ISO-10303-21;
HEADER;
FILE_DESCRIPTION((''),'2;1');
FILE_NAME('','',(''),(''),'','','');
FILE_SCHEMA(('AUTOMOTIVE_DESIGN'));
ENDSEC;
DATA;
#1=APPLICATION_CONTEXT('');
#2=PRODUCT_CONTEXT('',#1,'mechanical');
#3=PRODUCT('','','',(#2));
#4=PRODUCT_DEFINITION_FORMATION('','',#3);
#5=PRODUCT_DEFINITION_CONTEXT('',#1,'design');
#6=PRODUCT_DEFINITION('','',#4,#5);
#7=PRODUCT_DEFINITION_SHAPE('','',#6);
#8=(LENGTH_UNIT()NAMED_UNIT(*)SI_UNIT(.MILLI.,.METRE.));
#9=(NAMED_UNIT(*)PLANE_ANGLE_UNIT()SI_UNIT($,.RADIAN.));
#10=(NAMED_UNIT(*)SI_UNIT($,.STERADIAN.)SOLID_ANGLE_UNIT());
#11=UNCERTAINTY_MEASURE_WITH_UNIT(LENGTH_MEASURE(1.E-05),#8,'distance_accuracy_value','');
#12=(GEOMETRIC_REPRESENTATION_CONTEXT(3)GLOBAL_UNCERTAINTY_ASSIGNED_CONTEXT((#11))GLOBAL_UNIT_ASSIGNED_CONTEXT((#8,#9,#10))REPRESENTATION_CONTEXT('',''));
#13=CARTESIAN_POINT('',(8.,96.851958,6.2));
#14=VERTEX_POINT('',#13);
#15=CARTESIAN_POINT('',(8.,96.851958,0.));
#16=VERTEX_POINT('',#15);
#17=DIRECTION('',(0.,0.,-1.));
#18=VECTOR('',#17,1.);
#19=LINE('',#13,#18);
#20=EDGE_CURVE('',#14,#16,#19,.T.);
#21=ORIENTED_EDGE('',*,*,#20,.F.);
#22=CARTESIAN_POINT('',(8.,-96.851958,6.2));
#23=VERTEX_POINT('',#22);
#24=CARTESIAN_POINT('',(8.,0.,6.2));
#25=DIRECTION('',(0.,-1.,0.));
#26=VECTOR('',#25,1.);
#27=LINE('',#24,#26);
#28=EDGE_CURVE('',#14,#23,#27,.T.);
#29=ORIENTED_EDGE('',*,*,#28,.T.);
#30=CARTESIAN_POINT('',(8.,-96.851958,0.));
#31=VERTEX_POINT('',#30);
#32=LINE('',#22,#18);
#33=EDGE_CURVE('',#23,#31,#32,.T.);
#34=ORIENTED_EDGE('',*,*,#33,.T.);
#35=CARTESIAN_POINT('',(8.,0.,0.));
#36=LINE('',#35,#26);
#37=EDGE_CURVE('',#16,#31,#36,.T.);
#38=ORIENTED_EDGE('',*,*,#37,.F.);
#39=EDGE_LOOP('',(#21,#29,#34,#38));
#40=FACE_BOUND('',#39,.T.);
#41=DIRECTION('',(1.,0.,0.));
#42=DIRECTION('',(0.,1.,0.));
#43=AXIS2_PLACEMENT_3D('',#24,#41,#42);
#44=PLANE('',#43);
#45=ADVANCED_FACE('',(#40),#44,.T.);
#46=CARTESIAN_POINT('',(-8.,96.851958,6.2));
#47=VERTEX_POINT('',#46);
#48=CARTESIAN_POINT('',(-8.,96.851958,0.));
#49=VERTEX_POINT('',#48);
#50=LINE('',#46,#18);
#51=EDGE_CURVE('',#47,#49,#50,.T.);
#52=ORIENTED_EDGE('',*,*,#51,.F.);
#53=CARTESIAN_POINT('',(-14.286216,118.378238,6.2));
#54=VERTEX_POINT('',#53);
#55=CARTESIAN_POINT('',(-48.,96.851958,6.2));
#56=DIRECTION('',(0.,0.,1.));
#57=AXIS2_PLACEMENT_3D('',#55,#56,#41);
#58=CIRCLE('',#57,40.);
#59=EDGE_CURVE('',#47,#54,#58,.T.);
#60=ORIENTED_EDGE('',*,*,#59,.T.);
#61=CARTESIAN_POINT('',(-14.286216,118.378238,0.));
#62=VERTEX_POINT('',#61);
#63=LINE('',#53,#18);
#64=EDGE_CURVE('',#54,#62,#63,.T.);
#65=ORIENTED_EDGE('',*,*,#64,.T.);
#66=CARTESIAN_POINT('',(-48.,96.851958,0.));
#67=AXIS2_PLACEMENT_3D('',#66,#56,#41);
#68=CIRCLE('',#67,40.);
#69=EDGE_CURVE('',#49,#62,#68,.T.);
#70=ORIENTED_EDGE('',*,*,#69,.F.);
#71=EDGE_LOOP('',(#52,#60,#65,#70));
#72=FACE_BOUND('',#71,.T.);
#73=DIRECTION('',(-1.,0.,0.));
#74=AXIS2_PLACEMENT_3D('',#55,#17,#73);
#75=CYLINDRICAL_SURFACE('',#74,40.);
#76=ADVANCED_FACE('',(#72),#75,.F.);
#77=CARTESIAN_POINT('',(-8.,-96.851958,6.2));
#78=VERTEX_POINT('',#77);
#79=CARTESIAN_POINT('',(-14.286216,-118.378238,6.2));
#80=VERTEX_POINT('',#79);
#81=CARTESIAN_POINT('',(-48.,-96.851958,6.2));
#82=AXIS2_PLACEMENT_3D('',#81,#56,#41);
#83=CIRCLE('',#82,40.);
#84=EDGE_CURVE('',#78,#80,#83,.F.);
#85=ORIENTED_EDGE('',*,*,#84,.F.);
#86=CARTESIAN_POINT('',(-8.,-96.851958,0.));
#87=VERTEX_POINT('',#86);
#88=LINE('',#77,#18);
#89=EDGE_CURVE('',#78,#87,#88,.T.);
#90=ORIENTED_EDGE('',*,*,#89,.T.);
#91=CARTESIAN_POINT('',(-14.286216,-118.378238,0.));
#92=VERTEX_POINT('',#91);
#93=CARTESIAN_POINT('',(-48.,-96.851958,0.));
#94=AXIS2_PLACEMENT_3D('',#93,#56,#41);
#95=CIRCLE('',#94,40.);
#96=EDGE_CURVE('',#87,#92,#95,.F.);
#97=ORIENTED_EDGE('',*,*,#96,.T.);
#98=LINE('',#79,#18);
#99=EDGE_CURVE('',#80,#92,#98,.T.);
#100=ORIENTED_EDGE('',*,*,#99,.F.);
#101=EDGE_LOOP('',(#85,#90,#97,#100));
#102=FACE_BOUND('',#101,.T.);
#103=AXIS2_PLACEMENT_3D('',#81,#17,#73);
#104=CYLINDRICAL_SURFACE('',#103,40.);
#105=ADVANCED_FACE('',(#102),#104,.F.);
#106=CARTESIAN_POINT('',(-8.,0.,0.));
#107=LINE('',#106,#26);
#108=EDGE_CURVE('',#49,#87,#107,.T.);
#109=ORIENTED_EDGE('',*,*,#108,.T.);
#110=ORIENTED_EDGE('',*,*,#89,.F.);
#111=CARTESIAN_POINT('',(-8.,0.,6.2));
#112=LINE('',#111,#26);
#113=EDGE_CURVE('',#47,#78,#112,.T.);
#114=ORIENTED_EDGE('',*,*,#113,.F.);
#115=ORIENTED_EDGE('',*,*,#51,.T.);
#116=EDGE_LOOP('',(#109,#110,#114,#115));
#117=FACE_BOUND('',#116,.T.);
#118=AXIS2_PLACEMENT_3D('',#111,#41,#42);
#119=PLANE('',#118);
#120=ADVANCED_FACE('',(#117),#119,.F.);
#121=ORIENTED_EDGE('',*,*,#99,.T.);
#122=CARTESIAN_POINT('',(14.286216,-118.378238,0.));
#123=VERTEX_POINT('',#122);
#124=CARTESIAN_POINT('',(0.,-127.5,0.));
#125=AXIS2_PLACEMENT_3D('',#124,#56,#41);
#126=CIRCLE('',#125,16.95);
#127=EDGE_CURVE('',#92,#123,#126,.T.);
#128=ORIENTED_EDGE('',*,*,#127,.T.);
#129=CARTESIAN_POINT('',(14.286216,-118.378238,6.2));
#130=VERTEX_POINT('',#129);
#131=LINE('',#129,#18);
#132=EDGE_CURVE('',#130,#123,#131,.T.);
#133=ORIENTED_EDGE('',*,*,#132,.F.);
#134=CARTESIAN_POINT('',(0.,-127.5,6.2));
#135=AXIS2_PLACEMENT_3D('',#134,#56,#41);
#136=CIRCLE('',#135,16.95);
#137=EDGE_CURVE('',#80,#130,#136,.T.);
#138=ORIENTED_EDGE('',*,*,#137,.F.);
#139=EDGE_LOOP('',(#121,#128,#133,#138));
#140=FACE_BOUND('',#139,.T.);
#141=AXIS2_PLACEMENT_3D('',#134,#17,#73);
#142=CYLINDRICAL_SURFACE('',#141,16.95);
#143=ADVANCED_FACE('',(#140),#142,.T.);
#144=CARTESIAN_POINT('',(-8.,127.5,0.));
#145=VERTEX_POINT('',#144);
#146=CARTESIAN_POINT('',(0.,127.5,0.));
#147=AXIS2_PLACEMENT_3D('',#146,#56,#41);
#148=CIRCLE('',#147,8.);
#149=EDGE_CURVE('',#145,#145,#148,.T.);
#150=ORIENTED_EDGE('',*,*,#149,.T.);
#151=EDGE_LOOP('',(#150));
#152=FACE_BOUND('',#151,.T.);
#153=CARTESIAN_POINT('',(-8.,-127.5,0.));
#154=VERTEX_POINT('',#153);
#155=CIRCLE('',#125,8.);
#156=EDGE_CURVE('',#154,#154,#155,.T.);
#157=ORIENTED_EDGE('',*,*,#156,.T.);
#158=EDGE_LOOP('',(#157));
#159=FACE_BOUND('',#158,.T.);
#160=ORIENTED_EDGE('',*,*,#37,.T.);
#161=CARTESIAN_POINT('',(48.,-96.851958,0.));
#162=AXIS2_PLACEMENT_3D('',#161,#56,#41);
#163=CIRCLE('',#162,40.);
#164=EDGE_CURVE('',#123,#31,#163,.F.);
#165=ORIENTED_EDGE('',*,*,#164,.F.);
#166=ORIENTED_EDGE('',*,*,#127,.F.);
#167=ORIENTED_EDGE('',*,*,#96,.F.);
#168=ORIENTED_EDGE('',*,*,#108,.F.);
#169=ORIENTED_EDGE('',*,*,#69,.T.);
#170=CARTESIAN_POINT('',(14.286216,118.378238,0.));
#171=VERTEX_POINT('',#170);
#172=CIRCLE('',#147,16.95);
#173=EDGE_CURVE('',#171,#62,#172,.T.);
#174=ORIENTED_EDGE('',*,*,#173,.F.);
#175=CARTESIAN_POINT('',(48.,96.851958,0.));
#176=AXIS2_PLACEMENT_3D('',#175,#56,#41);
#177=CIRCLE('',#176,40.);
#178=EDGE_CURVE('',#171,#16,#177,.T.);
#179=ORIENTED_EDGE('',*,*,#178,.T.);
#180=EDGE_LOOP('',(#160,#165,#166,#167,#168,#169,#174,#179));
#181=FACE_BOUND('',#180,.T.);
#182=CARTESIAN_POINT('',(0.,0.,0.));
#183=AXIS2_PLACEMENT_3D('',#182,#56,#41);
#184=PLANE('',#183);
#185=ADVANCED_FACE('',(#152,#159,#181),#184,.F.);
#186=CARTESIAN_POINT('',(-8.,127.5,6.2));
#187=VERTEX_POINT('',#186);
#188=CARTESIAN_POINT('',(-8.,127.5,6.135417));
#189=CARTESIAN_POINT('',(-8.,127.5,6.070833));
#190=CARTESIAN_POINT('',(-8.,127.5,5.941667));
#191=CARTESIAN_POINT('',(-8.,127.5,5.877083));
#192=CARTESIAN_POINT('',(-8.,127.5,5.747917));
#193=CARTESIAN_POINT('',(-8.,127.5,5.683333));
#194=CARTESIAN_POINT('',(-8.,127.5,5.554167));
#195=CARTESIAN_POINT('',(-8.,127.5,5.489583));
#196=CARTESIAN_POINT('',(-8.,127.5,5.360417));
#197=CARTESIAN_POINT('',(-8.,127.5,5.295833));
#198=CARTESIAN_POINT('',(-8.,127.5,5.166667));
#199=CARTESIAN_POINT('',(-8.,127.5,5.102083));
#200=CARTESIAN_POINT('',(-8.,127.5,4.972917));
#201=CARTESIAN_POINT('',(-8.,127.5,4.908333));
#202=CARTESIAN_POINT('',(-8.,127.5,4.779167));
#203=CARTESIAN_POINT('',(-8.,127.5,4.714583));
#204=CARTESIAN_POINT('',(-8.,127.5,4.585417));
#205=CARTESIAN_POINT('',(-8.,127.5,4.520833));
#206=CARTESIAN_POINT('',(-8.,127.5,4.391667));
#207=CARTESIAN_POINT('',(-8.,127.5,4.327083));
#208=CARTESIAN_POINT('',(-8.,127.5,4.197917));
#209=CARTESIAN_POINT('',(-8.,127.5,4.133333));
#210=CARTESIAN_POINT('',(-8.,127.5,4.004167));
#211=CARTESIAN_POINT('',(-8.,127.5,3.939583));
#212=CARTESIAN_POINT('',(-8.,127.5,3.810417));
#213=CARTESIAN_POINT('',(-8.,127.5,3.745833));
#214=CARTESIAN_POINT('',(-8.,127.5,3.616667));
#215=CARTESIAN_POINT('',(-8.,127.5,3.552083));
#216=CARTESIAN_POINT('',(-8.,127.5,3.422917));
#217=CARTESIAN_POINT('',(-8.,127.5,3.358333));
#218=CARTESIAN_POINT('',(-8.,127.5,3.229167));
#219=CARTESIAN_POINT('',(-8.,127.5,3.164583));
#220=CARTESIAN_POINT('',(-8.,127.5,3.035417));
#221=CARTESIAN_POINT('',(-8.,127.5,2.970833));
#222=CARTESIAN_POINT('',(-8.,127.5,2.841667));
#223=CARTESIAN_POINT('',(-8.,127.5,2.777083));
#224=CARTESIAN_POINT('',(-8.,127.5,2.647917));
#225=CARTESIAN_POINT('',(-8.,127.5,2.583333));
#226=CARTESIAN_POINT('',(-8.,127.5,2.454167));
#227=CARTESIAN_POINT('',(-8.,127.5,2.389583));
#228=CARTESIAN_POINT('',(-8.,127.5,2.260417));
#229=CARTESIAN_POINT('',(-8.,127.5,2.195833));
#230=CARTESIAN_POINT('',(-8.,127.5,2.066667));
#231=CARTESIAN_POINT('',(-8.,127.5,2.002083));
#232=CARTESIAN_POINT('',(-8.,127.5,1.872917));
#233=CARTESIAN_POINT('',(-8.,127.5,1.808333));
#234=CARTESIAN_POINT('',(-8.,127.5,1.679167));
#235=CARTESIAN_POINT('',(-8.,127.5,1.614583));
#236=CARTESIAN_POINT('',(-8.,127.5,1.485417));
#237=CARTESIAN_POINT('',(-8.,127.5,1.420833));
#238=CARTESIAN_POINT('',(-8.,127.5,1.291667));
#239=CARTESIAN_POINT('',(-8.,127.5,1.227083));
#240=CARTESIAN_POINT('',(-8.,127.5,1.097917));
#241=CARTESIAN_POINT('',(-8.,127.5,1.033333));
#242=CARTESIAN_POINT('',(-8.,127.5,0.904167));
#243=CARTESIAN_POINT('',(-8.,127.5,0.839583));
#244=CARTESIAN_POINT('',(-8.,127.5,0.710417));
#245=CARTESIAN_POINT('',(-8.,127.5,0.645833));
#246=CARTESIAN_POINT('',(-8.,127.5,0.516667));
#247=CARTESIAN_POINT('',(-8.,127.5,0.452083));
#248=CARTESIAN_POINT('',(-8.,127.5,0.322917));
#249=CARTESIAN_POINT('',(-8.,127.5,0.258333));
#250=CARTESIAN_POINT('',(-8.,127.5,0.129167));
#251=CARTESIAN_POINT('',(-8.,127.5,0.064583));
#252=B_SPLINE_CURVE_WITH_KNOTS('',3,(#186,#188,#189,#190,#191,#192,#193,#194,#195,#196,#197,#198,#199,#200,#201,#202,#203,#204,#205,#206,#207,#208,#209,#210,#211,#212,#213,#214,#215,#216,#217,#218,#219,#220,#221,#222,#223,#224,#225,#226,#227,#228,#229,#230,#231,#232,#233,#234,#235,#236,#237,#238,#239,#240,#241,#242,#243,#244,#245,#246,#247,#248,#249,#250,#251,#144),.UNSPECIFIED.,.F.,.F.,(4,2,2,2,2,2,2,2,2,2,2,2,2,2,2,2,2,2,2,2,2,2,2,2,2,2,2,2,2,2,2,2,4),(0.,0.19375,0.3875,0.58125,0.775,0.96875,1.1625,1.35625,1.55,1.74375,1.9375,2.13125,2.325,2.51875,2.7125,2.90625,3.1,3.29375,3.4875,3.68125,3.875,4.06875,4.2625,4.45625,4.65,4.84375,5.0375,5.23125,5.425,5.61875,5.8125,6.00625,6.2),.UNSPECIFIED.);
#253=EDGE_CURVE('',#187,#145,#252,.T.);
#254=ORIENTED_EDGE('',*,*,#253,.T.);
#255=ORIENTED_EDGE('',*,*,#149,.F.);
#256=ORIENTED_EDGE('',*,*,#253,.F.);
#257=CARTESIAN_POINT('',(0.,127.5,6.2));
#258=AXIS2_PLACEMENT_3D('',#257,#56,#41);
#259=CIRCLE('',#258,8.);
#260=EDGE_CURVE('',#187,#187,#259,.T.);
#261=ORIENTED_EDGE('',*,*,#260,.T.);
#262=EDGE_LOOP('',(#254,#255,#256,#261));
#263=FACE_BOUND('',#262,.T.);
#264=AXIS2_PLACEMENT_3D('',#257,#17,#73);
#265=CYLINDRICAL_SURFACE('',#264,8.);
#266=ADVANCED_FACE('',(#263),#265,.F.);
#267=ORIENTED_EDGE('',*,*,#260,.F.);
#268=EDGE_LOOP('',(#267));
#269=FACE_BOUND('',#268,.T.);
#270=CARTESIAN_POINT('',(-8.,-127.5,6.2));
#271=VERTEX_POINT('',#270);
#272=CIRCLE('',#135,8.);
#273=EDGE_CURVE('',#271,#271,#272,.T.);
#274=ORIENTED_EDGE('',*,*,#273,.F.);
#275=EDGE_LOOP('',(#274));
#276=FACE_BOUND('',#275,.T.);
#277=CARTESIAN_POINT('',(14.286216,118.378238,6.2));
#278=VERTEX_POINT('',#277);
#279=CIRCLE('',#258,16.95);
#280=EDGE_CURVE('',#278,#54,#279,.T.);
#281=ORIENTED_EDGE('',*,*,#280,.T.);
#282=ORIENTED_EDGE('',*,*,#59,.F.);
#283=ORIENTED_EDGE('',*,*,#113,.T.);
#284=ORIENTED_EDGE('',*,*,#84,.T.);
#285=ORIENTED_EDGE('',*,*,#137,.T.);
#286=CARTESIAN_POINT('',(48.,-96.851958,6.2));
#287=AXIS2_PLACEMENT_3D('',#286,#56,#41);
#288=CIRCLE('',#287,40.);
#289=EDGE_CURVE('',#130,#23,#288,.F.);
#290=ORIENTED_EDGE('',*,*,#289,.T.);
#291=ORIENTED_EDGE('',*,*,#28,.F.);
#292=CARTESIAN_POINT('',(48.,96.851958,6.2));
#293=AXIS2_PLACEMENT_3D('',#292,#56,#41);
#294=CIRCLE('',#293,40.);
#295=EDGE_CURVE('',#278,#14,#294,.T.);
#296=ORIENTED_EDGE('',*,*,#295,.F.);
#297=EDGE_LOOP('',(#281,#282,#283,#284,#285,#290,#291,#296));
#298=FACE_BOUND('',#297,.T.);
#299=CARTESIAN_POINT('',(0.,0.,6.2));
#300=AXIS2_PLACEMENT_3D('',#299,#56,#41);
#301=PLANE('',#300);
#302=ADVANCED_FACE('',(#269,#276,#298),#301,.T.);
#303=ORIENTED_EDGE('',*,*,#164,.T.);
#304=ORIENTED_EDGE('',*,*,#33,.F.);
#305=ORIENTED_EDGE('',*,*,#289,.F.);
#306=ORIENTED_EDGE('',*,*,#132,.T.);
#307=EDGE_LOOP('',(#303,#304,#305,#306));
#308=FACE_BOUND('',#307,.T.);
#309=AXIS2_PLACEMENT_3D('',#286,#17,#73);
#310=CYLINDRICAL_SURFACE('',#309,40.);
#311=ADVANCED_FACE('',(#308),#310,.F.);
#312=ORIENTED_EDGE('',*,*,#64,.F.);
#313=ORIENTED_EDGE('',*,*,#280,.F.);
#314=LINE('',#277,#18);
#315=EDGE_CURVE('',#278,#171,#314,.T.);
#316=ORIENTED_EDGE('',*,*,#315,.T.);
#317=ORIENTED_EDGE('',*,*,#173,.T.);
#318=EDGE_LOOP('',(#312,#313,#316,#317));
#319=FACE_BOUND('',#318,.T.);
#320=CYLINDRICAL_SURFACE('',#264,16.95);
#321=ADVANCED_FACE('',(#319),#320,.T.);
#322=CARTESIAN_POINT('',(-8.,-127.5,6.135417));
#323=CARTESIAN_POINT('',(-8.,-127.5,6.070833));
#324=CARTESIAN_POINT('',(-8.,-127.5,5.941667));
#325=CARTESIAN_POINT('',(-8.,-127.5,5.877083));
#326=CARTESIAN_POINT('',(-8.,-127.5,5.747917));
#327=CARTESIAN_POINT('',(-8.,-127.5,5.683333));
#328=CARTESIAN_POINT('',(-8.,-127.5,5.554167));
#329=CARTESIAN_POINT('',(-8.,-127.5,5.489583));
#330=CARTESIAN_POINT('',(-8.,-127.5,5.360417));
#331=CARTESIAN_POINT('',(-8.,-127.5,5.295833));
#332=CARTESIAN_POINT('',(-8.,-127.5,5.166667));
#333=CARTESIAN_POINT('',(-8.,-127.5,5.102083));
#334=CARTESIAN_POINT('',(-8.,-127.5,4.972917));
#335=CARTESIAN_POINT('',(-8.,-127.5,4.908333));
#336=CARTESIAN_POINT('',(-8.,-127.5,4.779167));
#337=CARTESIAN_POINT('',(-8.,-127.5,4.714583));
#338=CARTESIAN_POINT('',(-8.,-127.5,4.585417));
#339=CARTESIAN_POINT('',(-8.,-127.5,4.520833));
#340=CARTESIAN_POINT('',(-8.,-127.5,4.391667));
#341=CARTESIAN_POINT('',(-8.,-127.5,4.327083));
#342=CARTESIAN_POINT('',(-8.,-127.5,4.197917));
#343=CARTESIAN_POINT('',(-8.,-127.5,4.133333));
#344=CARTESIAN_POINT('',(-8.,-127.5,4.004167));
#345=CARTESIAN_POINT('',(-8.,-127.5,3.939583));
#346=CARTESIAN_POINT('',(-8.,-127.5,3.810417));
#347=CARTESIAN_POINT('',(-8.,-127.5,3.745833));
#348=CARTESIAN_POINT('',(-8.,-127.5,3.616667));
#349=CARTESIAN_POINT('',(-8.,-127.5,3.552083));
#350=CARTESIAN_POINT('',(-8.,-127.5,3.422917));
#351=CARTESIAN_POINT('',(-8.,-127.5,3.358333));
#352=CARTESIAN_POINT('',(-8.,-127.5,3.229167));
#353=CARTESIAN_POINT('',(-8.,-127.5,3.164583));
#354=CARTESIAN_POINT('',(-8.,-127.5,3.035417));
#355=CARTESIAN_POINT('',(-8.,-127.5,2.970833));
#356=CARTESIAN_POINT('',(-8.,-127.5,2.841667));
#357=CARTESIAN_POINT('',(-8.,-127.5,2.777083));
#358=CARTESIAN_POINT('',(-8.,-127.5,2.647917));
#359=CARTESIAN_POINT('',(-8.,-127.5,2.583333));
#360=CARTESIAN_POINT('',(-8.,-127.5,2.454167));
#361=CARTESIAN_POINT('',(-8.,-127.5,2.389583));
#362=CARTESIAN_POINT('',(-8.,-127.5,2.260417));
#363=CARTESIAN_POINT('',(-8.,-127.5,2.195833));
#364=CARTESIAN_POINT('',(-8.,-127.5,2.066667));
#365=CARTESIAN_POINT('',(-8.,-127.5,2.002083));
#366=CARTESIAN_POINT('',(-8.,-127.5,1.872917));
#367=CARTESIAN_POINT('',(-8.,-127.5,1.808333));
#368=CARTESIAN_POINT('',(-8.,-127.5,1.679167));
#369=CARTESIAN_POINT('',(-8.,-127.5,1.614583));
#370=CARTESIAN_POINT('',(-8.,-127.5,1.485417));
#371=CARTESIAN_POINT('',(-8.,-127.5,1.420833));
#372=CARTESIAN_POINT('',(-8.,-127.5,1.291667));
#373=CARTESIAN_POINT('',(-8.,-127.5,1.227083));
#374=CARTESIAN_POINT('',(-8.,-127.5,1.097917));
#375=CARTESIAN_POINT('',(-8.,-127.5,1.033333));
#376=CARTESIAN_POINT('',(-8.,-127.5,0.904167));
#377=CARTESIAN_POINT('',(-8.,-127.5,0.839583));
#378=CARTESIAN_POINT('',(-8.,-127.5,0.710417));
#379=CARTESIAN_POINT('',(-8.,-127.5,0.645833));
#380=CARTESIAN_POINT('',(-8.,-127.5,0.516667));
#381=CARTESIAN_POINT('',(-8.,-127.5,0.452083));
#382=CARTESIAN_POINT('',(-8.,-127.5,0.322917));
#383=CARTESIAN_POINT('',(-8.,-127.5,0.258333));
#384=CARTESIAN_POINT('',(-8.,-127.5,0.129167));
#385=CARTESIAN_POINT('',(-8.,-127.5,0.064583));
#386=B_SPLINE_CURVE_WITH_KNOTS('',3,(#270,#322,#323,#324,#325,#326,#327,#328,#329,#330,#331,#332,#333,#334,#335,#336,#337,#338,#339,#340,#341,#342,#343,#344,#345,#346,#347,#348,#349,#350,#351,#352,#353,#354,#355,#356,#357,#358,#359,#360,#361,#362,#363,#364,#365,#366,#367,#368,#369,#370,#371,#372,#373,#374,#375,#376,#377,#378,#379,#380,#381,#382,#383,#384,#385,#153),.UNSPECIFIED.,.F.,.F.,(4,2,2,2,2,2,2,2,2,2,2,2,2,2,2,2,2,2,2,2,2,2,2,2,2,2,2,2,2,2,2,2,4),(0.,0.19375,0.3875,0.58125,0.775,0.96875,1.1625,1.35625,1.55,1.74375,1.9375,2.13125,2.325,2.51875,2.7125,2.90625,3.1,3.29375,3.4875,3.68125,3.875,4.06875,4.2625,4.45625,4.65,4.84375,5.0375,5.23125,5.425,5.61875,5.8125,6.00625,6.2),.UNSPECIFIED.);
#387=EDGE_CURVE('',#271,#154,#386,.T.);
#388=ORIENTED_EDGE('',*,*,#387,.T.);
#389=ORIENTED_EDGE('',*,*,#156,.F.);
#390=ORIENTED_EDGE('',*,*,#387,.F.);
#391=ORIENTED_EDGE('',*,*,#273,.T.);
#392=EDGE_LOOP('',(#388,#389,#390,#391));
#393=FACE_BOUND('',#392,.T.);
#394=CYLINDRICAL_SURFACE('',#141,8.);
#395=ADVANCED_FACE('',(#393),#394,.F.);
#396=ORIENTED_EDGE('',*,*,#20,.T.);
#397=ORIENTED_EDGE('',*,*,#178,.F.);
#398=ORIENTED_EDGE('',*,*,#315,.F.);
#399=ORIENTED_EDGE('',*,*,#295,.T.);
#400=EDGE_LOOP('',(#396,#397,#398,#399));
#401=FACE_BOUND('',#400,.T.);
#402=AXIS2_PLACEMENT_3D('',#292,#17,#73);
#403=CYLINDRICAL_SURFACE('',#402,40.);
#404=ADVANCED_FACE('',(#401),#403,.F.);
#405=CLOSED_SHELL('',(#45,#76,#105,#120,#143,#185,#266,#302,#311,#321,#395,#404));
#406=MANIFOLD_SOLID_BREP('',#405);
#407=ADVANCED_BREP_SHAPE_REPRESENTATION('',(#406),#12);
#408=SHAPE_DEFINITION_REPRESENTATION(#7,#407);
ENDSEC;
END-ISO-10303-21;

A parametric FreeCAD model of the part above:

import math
import FreeCAD as App
import Part
import Sketcher

V = App.Vector
Q = App.Units.Quantity

doc = App.newDocument("Part")
body = doc.addObject("PartDesign::Body", "Body")

sketch1 = doc.addObject("Sketcher::SketchObject", "Sketch")
body.addObject(sketch1)
sketch1.AttachmentSupport = (doc.XY_Plane, [""])
sketch1.MapMode = "FlatFace"
sketch1.addGeometry([
    Part.LineSegment(V(-8, 97, 0), V(-8, -97, 0)),
    Part.ArcOfCircle(Part.Circle(V(-48, -97, 0), V(0, 0, 1), 40), math.radians(-33), math.radians(0)),
    Part.ArcOfCircle(Part.Circle(V(0, -128, 0), V(0, 0, 1), 17), math.radians(147), math.radians(393)),
    Part.ArcOfCircle(Part.Circle(V(48, -97, 0), V(0, 0, 1), 40), math.radians(180), math.radians(213)),
    Part.LineSegment(V(8, -97, 0), V(8, 97, 0)),
    Part.ArcOfCircle(Part.Circle(V(48, 97, 0), V(0, 0, 1), 40), math.radians(147), math.radians(180)),
    Part.ArcOfCircle(Part.Circle(V(0, 128, 0), V(0, 0, 1), 17), math.radians(-33), math.radians(213)),
    Part.ArcOfCircle(Part.Circle(V(-48, 97, 0), V(0, 0, 1), 40), math.radians(0), math.radians(33)),
    Part.Circle(V(0, -128, 0), V(0, 0, 1), 8),
    Part.Circle(V(0, 128, 0), V(0, 0, 1), 8),
], False)
sketch1.addConstraint([
    Sketcher.Constraint("Tangent", 0, 2, 1, 2),
    Sketcher.Constraint("Tangent", 1, 1, 2, 1),
    Sketcher.Constraint("Tangent", 2, 2, 3, 2),
    Sketcher.Constraint("Tangent", 3, 1, 4, 1),
    Sketcher.Constraint("Tangent", 4, 2, 5, 2),
    Sketcher.Constraint("Tangent", 5, 1, 6, 1),
    Sketcher.Constraint("Tangent", 6, 2, 7, 2),
    Sketcher.Constraint("Tangent", 7, 1, 0, 1),
    Sketcher.Constraint("Vertical", 0),
    Sketcher.Constraint("Vertical", 4),
    Sketcher.Constraint("Coincident", 8, 3, 2, 3),
    Sketcher.Constraint("Coincident", 9, 3, 6, 3),
    Sketcher.Constraint("Equal", 1, 3),
    Sketcher.Constraint("Equal", 3, 5),
    Sketcher.Constraint("Equal", 2, 6),
    Sketcher.Constraint("Equal", 5, 7),
    Sketcher.Constraint("Equal", 8, 9),
    Sketcher.Constraint("Symmetric", 1, 3, 5, 3, -1, 1),
    Sketcher.Constraint("Symmetric", 2, 3, 6, 3, -1),
    Sketcher.Constraint("Diameter", 8, Q("16 mm")),
    Sketcher.Constraint("Radius", 1, Q("40 mm")),
    Sketcher.Constraint("Radius", 2, Q("16.95 mm")),
    Sketcher.Constraint("DistanceX", 1, 3, -1, 1, Q("48 mm")),
    Sketcher.Constraint("DistanceY", 2, 3, 6, 3, Q("255 mm")),
])
pad1 = doc.addObject("PartDesign::Pad", "Pad")
body.addObject(pad1)
pad1.Profile = sketch1
pad1.Length = 6.2

doc.recompute()
